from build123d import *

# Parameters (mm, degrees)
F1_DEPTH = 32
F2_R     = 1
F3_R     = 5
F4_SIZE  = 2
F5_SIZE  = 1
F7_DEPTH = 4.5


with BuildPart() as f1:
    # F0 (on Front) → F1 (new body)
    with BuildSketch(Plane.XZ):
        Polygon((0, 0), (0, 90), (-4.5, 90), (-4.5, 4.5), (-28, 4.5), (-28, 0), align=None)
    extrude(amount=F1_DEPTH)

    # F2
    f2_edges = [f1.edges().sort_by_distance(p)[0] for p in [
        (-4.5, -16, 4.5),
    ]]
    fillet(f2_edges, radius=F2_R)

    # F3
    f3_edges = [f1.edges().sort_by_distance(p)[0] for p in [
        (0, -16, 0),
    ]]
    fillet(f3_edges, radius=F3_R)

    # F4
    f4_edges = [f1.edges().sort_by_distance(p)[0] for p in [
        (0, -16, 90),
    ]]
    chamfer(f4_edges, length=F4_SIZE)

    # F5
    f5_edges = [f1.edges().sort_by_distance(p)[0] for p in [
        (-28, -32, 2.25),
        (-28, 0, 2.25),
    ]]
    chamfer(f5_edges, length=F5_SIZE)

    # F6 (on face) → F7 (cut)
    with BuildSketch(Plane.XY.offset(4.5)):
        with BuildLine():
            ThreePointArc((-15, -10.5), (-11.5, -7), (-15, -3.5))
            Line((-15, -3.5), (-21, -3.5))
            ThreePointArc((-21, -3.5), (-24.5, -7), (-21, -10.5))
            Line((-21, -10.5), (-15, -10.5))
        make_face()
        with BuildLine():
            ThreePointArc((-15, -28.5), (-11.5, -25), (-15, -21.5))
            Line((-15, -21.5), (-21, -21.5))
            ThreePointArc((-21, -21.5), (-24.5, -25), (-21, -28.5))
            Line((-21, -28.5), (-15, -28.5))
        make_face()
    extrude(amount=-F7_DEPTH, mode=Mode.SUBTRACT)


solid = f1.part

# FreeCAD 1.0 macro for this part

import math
import FreeCAD as App
import Part
import Sketcher
from FreeCAD import Vector


def edges_at(feature, points):
    """Names of the edges that pass closest to the given points."""
    edges = feature.Shape.Edges
    near = lambda p: min(range(len(edges)), key=lambda i: edges[i].distToShape(Part.Vertex(*p))[0])
    return sorted({f"Edge{near(p) + 1}" for p in points})

doc = App.newDocument("Part")
body = doc.addObject("PartDesign::Body", "Body")

sketch1 = doc.addObject("Sketcher::SketchObject", "Sketch")
body.addObject(sketch1)
sketch1.AttachmentSupport = (doc.XZ_Plane, [""])
sketch1.MapMode = "FlatFace"
sketch1.addGeometry([
    Part.LineSegment(Vector(0, 0, 0), Vector(0, 90, 0)),
    Part.LineSegment(Vector(0, 90, 0), Vector(-4.5, 90, 0)),
    Part.LineSegment(Vector(-4.5, 90, 0), Vector(-4.5, 4.5, 0)),
    Part.LineSegment(Vector(-4.5, 4.5, 0), Vector(-28, 4.5, 0)),
    Part.LineSegment(Vector(-28, 4.5, 0), Vector(-28, 0, 0)),
    Part.LineSegment(Vector(-28, 0, 0), Vector(0, 0, 0)),
], False)
sketch1.addConstraint([
    Sketcher.Constraint("Coincident", 0, 2, 1, 1),
    Sketcher.Constraint("Coincident", 1, 2, 2, 1),
    Sketcher.Constraint("Coincident", 2, 2, 3, 1),
    Sketcher.Constraint("Coincident", 3, 2, 4, 1),
    Sketcher.Constraint("Coincident", 4, 2, 5, 1),
    Sketcher.Constraint("Coincident", 5, 2, 0, 1),
    Sketcher.Constraint("Vertical", 0),
    Sketcher.Constraint("Horizontal", 1),
    Sketcher.Constraint("Vertical", 2),
    Sketcher.Constraint("Horizontal", 3),
    Sketcher.Constraint("Vertical", 4),
    Sketcher.Constraint("Horizontal", 5),
    Sketcher.Constraint("Coincident", 5, 2, -1, 1),
    Sketcher.Constraint("Equal", 1, 4),
    Sketcher.Constraint("DistanceX", 5, 1, 5, 2, 28.0),
    Sketcher.Constraint("DistanceY", 0, 1, 0, 2, 90.0),
    Sketcher.Constraint("DistanceX", 1, 2, 1, 1, 4.5),
])
pad1 = doc.addObject("PartDesign::Pad", "Pad")
body.addObject(pad1)
pad1.Profile = sketch1
pad1.Length = 32
doc.recompute()

fillet = doc.addObject("PartDesign::Fillet", "Fillet")
body.addObject(fillet)
fillet.Base = (pad1, edges_at(pad1, [(-4.5, -16, 4.5)]))
fillet.Radius = 1
doc.recompute()

fillet2 = doc.addObject("PartDesign::Fillet", "Fillet001")
body.addObject(fillet2)
fillet2.Base = (fillet, edges_at(fillet, [(0, -16, 0)]))
fillet2.Radius = 5
doc.recompute()

chamfer = doc.addObject("PartDesign::Chamfer", "Chamfer")
body.addObject(chamfer)
chamfer.Base = (fillet2, edges_at(fillet2, [(0, -16, 90)]))
chamfer.Size = 2
doc.recompute()

chamfer2 = doc.addObject("PartDesign::Chamfer", "Chamfer001")
body.addObject(chamfer2)
chamfer2.Base = (chamfer, edges_at(chamfer, [(-28, -32, 2.25), (-28, 0, 2.25)]))
chamfer2.Size = 1

sketch2 = doc.addObject("Sketcher::SketchObject", "Sketch001")
body.addObject(sketch2)
sketch2.AttachmentSupport = (doc.XY_Plane, [""])
sketch2.MapMode = "FlatFace"
sketch2.AttachmentOffset = App.Placement(Vector(0, 0, 4.5), App.Rotation())
sketch2.addGeometry([
    Part.ArcOfCircle(Part.Circle(Vector(-15, -7, 0), Vector(0, 0, 1), 3.5), math.radians(-90), math.radians(90)),
    Part.LineSegment(Vector(-15, -3.5, 0), Vector(-21, -3.5, 0)),
    Part.ArcOfCircle(Part.Circle(Vector(-21, -7, 0), Vector(0, 0, 1), 3.5), math.radians(90), math.radians(270)),
    Part.LineSegment(Vector(-21, -10.5, 0), Vector(-15, -10.5, 0)),
    Part.ArcOfCircle(Part.Circle(Vector(-15, -25, 0), Vector(0, 0, 1), 3.5), math.radians(-90), math.radians(90)),
    Part.LineSegment(Vector(-15, -21.5, 0), Vector(-21, -21.5, 0)),
    Part.ArcOfCircle(Part.Circle(Vector(-21, -25, 0), Vector(0, 0, 1), 3.5), math.radians(90), math.radians(270)),
    Part.LineSegment(Vector(-21, -28.5, 0), Vector(-15, -28.5, 0)),
], False)
sketch2.addConstraint([
    Sketcher.Constraint("Tangent", 0, 2, 1, 1),
    Sketcher.Constraint("Tangent", 1, 2, 2, 1),
    Sketcher.Constraint("Tangent", 2, 2, 3, 1),
    Sketcher.Constraint("Tangent", 3, 2, 0, 1),
    Sketcher.Constraint("Tangent", 4, 2, 5, 1),
    Sketcher.Constraint("Tangent", 5, 2, 6, 1),
    Sketcher.Constraint("Tangent", 6, 2, 7, 1),
    Sketcher.Constraint("Tangent", 7, 2, 4, 1),
    Sketcher.Constraint("Horizontal", 1),
    Sketcher.Constraint("Horizontal", 3),
    Sketcher.Constraint("Horizontal", 5),
    Sketcher.Constraint("Horizontal", 7),
    Sketcher.Constraint("Equal", 2, 4),
    Sketcher.Constraint("Vertical", 0, 3, 4, 3),
    Sketcher.Constraint("Vertical", 2, 3, 6, 3),
    Sketcher.Constraint("Radius", 0, 3.5),
    Sketcher.Constraint("DistanceX", 1, 2, 1, 1, 6.0),
    Sketcher.Constraint("DistanceX", 0, 3, -1, 1, 15.0),
    Sketcher.Constraint("DistanceY", 0, 3, -1, 1, 7.0),
    Sketcher.Constraint("DistanceY", 4, 3, -1, 1, 25.0),
])
pocket1 = doc.addObject("PartDesign::Pocket", "Pocket")
body.addObject(pocket1)
pocket1.Profile = sketch2
pocket1.Length = 4.5

doc.recompute()
